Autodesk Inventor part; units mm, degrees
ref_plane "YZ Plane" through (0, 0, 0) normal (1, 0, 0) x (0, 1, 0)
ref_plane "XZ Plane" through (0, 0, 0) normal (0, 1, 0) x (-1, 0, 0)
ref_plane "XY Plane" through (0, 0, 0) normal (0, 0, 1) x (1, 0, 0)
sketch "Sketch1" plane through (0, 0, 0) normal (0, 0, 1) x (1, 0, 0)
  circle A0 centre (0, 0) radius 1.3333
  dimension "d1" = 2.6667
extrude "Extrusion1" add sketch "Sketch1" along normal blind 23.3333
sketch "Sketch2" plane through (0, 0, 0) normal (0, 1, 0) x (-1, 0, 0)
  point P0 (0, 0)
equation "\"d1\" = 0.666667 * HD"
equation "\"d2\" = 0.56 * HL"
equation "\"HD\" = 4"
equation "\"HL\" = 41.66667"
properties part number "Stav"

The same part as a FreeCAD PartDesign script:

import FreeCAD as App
import Part
import Sketcher
Q = App.Units.Quantity

doc = App.newDocument("Part")
body = doc.addObject("PartDesign::Body", "Body")

sketch1 = body.newObject("Sketcher::SketchObject", "Sketch")
sketch1.AttachmentSupport = (doc.getObject("XY_Plane"), [""])
sketch1.MapMode = "FlatFace"
sketch1.addGeometry(Part.Circle(App.Vector(0, 0, 0), App.Vector(0, 0, 1), 1.3), False)
sketch1.addConstraint([
    Sketcher.Constraint("Coincident", 0, 3, -1, 1),
    Sketcher.Constraint("Diameter", 0, Q("2.6666 mm")),
])
pad1 = body.newObject("PartDesign::Pad", "Pad")
pad1.Profile = sketch1
pad1.Length = 23.3333

doc.recompute()
